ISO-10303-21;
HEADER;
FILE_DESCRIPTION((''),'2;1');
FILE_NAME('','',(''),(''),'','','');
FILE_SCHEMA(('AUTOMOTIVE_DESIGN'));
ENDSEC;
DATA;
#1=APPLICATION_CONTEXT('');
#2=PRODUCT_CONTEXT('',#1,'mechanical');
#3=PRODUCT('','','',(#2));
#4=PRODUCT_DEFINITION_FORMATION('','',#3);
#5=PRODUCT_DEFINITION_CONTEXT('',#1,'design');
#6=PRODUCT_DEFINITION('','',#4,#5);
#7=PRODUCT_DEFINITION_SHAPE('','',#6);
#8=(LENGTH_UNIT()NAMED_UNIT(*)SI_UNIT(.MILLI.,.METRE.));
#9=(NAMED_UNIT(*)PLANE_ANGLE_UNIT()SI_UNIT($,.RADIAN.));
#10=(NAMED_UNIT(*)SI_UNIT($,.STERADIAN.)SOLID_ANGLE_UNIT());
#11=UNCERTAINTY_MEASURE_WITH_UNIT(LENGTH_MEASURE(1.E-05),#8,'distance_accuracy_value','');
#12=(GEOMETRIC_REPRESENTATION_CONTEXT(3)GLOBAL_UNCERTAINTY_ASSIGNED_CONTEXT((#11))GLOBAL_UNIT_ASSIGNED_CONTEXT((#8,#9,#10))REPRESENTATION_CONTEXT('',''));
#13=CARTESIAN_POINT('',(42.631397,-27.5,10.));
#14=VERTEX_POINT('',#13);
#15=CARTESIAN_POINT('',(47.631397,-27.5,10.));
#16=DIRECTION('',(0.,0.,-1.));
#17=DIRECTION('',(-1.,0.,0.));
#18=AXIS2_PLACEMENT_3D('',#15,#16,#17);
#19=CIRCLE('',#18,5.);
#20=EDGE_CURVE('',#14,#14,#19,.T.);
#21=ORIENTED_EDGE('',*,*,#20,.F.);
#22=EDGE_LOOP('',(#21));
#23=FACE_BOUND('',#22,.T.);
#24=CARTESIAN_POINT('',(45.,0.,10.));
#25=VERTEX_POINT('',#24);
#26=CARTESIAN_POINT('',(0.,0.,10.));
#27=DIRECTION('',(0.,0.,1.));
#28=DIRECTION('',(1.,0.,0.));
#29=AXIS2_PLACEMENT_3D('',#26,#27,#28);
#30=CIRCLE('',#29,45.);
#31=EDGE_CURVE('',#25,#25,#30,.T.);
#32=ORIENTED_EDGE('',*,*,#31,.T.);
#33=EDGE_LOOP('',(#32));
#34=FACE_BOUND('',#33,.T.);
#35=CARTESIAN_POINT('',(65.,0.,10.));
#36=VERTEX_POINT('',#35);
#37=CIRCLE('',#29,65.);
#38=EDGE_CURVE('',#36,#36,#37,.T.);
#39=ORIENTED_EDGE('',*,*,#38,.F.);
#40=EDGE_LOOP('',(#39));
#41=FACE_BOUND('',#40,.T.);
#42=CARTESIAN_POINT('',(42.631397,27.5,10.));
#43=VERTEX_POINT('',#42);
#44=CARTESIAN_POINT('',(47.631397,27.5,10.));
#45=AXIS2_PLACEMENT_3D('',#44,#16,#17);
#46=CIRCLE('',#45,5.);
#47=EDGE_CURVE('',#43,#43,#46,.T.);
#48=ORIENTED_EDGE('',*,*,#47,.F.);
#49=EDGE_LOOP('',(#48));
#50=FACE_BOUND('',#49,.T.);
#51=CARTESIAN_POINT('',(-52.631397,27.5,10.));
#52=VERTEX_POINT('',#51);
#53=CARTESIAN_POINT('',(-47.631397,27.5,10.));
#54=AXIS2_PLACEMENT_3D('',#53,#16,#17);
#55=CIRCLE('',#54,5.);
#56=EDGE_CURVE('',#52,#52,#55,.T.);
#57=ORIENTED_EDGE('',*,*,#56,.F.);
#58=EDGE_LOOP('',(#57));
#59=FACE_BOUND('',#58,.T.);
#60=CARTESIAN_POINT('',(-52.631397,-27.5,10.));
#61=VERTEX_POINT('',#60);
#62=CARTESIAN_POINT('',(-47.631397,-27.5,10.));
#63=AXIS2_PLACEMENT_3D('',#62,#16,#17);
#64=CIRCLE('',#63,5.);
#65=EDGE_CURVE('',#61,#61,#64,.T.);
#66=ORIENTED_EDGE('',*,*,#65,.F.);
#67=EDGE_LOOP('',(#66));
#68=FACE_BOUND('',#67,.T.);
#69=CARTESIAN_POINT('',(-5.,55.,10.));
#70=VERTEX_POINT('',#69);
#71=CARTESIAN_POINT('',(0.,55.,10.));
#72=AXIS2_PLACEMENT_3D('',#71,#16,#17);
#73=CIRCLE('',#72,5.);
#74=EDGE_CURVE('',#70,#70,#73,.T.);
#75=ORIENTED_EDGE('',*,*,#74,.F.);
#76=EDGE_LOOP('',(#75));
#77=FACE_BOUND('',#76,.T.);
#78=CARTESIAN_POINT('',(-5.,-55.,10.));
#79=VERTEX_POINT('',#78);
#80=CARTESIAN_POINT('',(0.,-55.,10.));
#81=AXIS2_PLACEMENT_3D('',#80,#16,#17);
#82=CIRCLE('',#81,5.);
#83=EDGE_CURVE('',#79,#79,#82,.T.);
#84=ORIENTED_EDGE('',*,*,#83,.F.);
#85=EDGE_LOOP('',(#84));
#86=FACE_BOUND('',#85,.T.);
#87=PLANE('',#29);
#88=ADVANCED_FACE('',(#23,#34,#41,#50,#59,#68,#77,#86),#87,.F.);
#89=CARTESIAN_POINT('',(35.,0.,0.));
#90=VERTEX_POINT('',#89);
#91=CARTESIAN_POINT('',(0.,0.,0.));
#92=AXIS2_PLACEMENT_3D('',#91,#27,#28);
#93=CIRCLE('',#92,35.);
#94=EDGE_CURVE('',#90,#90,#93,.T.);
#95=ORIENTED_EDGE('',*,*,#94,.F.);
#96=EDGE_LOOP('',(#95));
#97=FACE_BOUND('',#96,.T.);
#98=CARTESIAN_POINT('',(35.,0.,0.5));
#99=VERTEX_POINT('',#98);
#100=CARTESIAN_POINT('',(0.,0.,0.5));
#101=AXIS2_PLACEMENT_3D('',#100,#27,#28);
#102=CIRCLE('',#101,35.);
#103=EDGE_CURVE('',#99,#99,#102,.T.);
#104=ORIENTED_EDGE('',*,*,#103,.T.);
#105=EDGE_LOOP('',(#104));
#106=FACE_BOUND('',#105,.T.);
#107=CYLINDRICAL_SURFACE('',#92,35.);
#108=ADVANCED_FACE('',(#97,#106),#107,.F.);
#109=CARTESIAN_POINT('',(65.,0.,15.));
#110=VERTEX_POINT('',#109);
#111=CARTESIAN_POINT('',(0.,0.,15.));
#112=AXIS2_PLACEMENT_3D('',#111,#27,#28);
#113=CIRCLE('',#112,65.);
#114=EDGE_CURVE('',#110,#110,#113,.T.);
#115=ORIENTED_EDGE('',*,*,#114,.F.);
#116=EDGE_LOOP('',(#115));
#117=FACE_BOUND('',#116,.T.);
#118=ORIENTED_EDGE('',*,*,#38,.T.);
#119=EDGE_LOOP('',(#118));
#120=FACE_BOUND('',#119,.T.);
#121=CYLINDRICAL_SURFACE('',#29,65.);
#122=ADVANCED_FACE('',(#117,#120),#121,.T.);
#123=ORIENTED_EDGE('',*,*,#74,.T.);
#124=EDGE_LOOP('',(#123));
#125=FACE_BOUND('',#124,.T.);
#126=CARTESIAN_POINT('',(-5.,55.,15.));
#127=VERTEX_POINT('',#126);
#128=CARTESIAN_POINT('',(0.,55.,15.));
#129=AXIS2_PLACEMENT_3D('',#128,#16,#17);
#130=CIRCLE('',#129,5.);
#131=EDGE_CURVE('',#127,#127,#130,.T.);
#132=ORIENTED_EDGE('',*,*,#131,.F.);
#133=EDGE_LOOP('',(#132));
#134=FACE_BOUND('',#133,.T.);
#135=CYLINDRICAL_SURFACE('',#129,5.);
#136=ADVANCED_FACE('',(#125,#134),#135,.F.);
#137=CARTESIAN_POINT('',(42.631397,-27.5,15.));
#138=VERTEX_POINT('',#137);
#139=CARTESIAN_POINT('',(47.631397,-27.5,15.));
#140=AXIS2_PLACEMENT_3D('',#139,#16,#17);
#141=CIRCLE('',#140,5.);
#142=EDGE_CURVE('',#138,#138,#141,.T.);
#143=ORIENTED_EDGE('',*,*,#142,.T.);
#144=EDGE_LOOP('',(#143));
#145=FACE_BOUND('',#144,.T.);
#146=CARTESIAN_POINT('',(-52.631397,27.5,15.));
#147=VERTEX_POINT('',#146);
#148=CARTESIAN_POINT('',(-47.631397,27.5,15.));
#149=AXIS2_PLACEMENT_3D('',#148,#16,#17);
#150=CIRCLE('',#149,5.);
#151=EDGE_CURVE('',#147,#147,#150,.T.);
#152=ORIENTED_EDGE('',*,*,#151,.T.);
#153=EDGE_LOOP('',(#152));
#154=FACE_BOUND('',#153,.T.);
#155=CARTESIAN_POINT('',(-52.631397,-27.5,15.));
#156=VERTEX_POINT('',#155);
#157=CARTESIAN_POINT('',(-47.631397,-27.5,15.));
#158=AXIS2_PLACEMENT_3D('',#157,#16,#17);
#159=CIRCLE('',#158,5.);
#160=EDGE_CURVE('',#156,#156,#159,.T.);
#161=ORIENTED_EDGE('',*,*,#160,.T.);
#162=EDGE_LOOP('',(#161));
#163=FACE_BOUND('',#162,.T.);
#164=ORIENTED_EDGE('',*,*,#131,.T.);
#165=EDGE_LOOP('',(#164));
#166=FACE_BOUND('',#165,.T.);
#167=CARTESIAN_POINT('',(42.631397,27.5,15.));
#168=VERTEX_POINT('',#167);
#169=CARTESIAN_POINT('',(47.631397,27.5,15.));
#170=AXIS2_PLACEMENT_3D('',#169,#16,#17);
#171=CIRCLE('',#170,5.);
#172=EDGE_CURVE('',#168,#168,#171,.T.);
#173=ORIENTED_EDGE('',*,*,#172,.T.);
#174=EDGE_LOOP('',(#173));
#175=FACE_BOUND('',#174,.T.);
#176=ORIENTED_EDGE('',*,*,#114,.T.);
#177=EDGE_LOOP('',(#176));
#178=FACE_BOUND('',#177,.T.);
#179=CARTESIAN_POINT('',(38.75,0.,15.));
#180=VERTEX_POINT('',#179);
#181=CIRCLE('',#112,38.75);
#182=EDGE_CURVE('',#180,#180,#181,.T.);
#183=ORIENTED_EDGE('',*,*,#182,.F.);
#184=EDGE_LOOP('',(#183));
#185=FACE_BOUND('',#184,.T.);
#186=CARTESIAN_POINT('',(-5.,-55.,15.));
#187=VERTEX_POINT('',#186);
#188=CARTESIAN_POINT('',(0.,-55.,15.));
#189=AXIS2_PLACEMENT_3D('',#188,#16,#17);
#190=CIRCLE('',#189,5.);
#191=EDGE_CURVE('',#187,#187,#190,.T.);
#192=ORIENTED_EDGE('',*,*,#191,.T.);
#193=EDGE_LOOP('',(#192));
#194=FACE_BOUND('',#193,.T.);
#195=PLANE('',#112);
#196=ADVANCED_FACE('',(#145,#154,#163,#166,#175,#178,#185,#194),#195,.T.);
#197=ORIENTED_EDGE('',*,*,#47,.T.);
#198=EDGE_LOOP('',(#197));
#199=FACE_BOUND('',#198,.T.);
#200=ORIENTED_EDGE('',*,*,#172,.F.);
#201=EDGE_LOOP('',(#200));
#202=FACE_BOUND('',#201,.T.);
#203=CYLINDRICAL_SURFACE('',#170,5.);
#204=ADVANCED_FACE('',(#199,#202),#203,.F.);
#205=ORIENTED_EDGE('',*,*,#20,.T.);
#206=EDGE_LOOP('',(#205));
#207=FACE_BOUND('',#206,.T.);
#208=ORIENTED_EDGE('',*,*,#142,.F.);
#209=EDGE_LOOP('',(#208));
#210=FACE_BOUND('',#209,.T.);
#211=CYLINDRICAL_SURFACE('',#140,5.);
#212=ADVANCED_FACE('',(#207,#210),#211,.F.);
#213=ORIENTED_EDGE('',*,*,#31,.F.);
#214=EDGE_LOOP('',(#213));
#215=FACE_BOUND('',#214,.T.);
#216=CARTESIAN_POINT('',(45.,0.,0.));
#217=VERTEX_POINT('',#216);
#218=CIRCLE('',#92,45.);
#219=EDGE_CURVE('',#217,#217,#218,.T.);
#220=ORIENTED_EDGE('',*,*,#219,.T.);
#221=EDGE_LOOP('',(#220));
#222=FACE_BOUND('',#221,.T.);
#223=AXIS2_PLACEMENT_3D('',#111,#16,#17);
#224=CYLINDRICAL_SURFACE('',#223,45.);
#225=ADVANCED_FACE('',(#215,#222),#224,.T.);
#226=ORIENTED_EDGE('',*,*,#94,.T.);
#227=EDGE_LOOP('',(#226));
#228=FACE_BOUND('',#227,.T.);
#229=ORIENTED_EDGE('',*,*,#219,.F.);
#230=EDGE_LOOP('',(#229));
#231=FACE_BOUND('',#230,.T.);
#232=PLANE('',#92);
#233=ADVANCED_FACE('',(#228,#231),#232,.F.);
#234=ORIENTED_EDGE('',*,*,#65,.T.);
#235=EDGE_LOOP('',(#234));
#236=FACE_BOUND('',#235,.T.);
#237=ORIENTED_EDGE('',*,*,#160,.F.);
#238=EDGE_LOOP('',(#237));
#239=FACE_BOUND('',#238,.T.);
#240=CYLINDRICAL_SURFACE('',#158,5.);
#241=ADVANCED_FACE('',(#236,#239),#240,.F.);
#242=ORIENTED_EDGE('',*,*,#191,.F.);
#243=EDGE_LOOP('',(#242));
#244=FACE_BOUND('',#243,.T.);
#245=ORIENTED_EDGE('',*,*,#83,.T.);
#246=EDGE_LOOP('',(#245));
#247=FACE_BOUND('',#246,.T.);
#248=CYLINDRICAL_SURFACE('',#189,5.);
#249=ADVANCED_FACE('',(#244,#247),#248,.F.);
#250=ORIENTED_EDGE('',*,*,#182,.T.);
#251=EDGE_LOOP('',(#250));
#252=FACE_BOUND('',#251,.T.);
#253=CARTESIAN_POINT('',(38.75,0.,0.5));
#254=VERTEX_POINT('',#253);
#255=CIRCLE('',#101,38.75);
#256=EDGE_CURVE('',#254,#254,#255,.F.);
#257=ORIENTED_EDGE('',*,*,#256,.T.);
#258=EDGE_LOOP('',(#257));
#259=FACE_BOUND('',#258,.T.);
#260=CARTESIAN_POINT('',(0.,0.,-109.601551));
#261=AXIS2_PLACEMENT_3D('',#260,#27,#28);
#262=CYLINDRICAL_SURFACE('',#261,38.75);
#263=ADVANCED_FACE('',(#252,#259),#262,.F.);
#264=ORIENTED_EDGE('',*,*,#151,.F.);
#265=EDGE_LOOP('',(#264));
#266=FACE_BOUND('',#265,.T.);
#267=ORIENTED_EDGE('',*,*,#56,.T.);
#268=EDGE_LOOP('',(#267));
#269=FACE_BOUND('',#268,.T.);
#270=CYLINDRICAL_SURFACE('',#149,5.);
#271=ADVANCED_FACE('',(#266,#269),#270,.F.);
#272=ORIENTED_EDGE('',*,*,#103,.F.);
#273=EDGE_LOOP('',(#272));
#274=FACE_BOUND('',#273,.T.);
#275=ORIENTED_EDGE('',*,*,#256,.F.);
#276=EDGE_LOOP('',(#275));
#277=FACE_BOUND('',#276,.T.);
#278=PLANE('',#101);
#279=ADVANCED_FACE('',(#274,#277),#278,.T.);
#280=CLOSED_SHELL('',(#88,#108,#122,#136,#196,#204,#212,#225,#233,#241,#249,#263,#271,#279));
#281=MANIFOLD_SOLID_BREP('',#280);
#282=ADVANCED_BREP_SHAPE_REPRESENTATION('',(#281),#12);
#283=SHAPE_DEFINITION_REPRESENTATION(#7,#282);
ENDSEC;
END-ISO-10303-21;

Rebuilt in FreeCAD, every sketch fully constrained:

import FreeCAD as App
import Part
import Sketcher
from FreeCAD import Vector
Q = App.Units.Quantity

doc = App.newDocument("Part")
body = doc.addObject("PartDesign::Body", "Body")

sketch1 = doc.addObject("Sketcher::SketchObject", "Sketch")
body.addObject(sketch1)
sketch1.AttachmentSupport = (doc.XY_Plane, [""])
sketch1.MapMode = "FlatFace"
sketch1.addGeometry(Part.Circle(Vector(0, 0, 0), Vector(0, 0, 1), 45), False)
sketch1.addConstraint([
    Sketcher.Constraint("Coincident", 0, 3, -1, 1),
    Sketcher.Constraint("Diameter", 0, Q("90 mm")),
])
pad1 = doc.addObject("PartDesign::Pad", "Pad")
body.addObject(pad1)
pad1.Profile = sketch1
pad1.Length = 15

sketch2 = doc.addObject("Sketcher::SketchObject", "Sketch001")
body.addObject(sketch2)
sketch2.AttachmentSupport = (doc.XY_Plane, [""])
sketch2.MapMode = "FlatFace"
sketch2.AttachmentOffset = App.Placement(Vector(0, 0, 15), App.Rotation())
sketch2.addGeometry(Part.Circle(Vector(0, 0, 0), Vector(0, 0, 1), 39), False)
sketch2.addConstraint([
    Sketcher.Constraint("Coincident", 0, 3, -1, 1),
    Sketcher.Constraint("Diameter", 0, Q("77.5 mm")),
])
pocket1 = doc.addObject("PartDesign::Pocket", "Pocket")
body.addObject(pocket1)
pocket1.Profile = sketch2
pocket1.Length = 14.5

sketch3 = doc.addObject("Sketcher::SketchObject", "Sketch002")
body.addObject(sketch3)
sketch3.AttachmentSupport = (doc.XY_Plane, [""])
sketch3.MapMode = "FlatFace"
sketch3.AttachmentOffset = App.Placement(Vector(0, 0, 0.5), App.Rotation())
sketch3.addGeometry(Part.Circle(Vector(0, 0, 0), Vector(0, 0, 1), 35), False)
sketch3.addConstraint([
    Sketcher.Constraint("Coincident", 0, 3, -1, 1),
    Sketcher.Constraint("Diameter", 0, Q("70 mm")),
])
pocket2 = doc.addObject("PartDesign::Pocket", "Pocket001")
body.addObject(pocket2)
pocket2.Profile = sketch3
pocket2.Type = "ThroughAll"

sketch4 = doc.addObject("Sketcher::SketchObject", "Sketch003")
body.addObject(sketch4)
sketch4.AttachmentSupport = (doc.XY_Plane, [""])
sketch4.MapMode = "FlatFace"
sketch4.AttachmentOffset = App.Placement(Vector(0, 0, 10), App.Rotation())
sketch4.addGeometry([
    Part.Circle(Vector(0, 0, 0), Vector(0, 0, 1), 65),
    Part.Circle(Vector(0, 0, 0), Vector(0, 0, 1), 45),
], False)
sketch4.addConstraint([
    Sketcher.Constraint("Coincident", 0, 3, -1, 1),
    Sketcher.Constraint("Coincident", 1, 3, -1, 1),
    Sketcher.Constraint("Diameter", 0, Q("130 mm")),
    Sketcher.Constraint("Diameter", 1, Q("90 mm")),
])
pad2 = doc.addObject("PartDesign::Pad", "Pad001")
body.addObject(pad2)
pad2.Profile = sketch4
pad2.Length = 5

sketch5 = doc.addObject("Sketcher::SketchObject", "Sketch004")
body.addObject(sketch5)
sketch5.AttachmentSupport = (doc.XY_Plane, [""])
sketch5.MapMode = "FlatFace"
sketch5.AttachmentOffset = App.Placement(Vector(0, 0, 10), App.Rotation())
sketch5.addGeometry([
    Part.Circle(Vector(0, 55, 0), Vector(0, 0, 1), 5),
    Part.Circle(Vector(-48, 28, 0), Vector(0, 0, 1), 5),
    Part.Circle(Vector(-48, -28, 0), Vector(0, 0, 1), 5),
    Part.Circle(Vector(0, -55, 0), Vector(0, 0, 1), 5),
    Part.Circle(Vector(48, -28, 0), Vector(0, 0, 1), 5),
    Part.Circle(Vector(48, 28, 0), Vector(0, 0, 1), 5),
], False)
sketch5.addConstraint([
    Sketcher.Constraint("Equal", 0, 1),
    Sketcher.Constraint("Equal", 1, 2),
    Sketcher.Constraint("Equal", 2, 3),
    Sketcher.Constraint("Equal", 3, 4),
    Sketcher.Constraint("Equal", 4, 5),
    Sketcher.Constraint("Symmetric", 0, 3, 3, 3, -1, 1),
    Sketcher.Constraint("Symmetric", 1, 3, 4, 3, -1, 1),
    Sketcher.Constraint("Symmetric", 2, 3, 5, 3, -1, 1),
    Sketcher.Constraint("Symmetric", 2, 3, 4, 3, -2),
    Sketcher.Constraint("PointOnObject", 0, 3, -2),
    Sketcher.Constraint("Diameter", 0, Q("10 mm")),
    Sketcher.Constraint("DistanceY", -1, 1, 0, 3, Q("55 mm")),
    Sketcher.Constraint("DistanceY", 2, 3, 1, 3, Q("55 mm")),
    Sketcher.Constraint("DistanceX", 1, 3, -1, 1, Q("47.631397 mm")),
])
pocket3 = doc.addObject("PartDesign::Pocket", "Pocket002")
body.addObject(pocket3)
pocket3.Profile = sketch5
pocket3.Type = "ThroughAll"
pocket3.Reversed = True

doc.recompute()
